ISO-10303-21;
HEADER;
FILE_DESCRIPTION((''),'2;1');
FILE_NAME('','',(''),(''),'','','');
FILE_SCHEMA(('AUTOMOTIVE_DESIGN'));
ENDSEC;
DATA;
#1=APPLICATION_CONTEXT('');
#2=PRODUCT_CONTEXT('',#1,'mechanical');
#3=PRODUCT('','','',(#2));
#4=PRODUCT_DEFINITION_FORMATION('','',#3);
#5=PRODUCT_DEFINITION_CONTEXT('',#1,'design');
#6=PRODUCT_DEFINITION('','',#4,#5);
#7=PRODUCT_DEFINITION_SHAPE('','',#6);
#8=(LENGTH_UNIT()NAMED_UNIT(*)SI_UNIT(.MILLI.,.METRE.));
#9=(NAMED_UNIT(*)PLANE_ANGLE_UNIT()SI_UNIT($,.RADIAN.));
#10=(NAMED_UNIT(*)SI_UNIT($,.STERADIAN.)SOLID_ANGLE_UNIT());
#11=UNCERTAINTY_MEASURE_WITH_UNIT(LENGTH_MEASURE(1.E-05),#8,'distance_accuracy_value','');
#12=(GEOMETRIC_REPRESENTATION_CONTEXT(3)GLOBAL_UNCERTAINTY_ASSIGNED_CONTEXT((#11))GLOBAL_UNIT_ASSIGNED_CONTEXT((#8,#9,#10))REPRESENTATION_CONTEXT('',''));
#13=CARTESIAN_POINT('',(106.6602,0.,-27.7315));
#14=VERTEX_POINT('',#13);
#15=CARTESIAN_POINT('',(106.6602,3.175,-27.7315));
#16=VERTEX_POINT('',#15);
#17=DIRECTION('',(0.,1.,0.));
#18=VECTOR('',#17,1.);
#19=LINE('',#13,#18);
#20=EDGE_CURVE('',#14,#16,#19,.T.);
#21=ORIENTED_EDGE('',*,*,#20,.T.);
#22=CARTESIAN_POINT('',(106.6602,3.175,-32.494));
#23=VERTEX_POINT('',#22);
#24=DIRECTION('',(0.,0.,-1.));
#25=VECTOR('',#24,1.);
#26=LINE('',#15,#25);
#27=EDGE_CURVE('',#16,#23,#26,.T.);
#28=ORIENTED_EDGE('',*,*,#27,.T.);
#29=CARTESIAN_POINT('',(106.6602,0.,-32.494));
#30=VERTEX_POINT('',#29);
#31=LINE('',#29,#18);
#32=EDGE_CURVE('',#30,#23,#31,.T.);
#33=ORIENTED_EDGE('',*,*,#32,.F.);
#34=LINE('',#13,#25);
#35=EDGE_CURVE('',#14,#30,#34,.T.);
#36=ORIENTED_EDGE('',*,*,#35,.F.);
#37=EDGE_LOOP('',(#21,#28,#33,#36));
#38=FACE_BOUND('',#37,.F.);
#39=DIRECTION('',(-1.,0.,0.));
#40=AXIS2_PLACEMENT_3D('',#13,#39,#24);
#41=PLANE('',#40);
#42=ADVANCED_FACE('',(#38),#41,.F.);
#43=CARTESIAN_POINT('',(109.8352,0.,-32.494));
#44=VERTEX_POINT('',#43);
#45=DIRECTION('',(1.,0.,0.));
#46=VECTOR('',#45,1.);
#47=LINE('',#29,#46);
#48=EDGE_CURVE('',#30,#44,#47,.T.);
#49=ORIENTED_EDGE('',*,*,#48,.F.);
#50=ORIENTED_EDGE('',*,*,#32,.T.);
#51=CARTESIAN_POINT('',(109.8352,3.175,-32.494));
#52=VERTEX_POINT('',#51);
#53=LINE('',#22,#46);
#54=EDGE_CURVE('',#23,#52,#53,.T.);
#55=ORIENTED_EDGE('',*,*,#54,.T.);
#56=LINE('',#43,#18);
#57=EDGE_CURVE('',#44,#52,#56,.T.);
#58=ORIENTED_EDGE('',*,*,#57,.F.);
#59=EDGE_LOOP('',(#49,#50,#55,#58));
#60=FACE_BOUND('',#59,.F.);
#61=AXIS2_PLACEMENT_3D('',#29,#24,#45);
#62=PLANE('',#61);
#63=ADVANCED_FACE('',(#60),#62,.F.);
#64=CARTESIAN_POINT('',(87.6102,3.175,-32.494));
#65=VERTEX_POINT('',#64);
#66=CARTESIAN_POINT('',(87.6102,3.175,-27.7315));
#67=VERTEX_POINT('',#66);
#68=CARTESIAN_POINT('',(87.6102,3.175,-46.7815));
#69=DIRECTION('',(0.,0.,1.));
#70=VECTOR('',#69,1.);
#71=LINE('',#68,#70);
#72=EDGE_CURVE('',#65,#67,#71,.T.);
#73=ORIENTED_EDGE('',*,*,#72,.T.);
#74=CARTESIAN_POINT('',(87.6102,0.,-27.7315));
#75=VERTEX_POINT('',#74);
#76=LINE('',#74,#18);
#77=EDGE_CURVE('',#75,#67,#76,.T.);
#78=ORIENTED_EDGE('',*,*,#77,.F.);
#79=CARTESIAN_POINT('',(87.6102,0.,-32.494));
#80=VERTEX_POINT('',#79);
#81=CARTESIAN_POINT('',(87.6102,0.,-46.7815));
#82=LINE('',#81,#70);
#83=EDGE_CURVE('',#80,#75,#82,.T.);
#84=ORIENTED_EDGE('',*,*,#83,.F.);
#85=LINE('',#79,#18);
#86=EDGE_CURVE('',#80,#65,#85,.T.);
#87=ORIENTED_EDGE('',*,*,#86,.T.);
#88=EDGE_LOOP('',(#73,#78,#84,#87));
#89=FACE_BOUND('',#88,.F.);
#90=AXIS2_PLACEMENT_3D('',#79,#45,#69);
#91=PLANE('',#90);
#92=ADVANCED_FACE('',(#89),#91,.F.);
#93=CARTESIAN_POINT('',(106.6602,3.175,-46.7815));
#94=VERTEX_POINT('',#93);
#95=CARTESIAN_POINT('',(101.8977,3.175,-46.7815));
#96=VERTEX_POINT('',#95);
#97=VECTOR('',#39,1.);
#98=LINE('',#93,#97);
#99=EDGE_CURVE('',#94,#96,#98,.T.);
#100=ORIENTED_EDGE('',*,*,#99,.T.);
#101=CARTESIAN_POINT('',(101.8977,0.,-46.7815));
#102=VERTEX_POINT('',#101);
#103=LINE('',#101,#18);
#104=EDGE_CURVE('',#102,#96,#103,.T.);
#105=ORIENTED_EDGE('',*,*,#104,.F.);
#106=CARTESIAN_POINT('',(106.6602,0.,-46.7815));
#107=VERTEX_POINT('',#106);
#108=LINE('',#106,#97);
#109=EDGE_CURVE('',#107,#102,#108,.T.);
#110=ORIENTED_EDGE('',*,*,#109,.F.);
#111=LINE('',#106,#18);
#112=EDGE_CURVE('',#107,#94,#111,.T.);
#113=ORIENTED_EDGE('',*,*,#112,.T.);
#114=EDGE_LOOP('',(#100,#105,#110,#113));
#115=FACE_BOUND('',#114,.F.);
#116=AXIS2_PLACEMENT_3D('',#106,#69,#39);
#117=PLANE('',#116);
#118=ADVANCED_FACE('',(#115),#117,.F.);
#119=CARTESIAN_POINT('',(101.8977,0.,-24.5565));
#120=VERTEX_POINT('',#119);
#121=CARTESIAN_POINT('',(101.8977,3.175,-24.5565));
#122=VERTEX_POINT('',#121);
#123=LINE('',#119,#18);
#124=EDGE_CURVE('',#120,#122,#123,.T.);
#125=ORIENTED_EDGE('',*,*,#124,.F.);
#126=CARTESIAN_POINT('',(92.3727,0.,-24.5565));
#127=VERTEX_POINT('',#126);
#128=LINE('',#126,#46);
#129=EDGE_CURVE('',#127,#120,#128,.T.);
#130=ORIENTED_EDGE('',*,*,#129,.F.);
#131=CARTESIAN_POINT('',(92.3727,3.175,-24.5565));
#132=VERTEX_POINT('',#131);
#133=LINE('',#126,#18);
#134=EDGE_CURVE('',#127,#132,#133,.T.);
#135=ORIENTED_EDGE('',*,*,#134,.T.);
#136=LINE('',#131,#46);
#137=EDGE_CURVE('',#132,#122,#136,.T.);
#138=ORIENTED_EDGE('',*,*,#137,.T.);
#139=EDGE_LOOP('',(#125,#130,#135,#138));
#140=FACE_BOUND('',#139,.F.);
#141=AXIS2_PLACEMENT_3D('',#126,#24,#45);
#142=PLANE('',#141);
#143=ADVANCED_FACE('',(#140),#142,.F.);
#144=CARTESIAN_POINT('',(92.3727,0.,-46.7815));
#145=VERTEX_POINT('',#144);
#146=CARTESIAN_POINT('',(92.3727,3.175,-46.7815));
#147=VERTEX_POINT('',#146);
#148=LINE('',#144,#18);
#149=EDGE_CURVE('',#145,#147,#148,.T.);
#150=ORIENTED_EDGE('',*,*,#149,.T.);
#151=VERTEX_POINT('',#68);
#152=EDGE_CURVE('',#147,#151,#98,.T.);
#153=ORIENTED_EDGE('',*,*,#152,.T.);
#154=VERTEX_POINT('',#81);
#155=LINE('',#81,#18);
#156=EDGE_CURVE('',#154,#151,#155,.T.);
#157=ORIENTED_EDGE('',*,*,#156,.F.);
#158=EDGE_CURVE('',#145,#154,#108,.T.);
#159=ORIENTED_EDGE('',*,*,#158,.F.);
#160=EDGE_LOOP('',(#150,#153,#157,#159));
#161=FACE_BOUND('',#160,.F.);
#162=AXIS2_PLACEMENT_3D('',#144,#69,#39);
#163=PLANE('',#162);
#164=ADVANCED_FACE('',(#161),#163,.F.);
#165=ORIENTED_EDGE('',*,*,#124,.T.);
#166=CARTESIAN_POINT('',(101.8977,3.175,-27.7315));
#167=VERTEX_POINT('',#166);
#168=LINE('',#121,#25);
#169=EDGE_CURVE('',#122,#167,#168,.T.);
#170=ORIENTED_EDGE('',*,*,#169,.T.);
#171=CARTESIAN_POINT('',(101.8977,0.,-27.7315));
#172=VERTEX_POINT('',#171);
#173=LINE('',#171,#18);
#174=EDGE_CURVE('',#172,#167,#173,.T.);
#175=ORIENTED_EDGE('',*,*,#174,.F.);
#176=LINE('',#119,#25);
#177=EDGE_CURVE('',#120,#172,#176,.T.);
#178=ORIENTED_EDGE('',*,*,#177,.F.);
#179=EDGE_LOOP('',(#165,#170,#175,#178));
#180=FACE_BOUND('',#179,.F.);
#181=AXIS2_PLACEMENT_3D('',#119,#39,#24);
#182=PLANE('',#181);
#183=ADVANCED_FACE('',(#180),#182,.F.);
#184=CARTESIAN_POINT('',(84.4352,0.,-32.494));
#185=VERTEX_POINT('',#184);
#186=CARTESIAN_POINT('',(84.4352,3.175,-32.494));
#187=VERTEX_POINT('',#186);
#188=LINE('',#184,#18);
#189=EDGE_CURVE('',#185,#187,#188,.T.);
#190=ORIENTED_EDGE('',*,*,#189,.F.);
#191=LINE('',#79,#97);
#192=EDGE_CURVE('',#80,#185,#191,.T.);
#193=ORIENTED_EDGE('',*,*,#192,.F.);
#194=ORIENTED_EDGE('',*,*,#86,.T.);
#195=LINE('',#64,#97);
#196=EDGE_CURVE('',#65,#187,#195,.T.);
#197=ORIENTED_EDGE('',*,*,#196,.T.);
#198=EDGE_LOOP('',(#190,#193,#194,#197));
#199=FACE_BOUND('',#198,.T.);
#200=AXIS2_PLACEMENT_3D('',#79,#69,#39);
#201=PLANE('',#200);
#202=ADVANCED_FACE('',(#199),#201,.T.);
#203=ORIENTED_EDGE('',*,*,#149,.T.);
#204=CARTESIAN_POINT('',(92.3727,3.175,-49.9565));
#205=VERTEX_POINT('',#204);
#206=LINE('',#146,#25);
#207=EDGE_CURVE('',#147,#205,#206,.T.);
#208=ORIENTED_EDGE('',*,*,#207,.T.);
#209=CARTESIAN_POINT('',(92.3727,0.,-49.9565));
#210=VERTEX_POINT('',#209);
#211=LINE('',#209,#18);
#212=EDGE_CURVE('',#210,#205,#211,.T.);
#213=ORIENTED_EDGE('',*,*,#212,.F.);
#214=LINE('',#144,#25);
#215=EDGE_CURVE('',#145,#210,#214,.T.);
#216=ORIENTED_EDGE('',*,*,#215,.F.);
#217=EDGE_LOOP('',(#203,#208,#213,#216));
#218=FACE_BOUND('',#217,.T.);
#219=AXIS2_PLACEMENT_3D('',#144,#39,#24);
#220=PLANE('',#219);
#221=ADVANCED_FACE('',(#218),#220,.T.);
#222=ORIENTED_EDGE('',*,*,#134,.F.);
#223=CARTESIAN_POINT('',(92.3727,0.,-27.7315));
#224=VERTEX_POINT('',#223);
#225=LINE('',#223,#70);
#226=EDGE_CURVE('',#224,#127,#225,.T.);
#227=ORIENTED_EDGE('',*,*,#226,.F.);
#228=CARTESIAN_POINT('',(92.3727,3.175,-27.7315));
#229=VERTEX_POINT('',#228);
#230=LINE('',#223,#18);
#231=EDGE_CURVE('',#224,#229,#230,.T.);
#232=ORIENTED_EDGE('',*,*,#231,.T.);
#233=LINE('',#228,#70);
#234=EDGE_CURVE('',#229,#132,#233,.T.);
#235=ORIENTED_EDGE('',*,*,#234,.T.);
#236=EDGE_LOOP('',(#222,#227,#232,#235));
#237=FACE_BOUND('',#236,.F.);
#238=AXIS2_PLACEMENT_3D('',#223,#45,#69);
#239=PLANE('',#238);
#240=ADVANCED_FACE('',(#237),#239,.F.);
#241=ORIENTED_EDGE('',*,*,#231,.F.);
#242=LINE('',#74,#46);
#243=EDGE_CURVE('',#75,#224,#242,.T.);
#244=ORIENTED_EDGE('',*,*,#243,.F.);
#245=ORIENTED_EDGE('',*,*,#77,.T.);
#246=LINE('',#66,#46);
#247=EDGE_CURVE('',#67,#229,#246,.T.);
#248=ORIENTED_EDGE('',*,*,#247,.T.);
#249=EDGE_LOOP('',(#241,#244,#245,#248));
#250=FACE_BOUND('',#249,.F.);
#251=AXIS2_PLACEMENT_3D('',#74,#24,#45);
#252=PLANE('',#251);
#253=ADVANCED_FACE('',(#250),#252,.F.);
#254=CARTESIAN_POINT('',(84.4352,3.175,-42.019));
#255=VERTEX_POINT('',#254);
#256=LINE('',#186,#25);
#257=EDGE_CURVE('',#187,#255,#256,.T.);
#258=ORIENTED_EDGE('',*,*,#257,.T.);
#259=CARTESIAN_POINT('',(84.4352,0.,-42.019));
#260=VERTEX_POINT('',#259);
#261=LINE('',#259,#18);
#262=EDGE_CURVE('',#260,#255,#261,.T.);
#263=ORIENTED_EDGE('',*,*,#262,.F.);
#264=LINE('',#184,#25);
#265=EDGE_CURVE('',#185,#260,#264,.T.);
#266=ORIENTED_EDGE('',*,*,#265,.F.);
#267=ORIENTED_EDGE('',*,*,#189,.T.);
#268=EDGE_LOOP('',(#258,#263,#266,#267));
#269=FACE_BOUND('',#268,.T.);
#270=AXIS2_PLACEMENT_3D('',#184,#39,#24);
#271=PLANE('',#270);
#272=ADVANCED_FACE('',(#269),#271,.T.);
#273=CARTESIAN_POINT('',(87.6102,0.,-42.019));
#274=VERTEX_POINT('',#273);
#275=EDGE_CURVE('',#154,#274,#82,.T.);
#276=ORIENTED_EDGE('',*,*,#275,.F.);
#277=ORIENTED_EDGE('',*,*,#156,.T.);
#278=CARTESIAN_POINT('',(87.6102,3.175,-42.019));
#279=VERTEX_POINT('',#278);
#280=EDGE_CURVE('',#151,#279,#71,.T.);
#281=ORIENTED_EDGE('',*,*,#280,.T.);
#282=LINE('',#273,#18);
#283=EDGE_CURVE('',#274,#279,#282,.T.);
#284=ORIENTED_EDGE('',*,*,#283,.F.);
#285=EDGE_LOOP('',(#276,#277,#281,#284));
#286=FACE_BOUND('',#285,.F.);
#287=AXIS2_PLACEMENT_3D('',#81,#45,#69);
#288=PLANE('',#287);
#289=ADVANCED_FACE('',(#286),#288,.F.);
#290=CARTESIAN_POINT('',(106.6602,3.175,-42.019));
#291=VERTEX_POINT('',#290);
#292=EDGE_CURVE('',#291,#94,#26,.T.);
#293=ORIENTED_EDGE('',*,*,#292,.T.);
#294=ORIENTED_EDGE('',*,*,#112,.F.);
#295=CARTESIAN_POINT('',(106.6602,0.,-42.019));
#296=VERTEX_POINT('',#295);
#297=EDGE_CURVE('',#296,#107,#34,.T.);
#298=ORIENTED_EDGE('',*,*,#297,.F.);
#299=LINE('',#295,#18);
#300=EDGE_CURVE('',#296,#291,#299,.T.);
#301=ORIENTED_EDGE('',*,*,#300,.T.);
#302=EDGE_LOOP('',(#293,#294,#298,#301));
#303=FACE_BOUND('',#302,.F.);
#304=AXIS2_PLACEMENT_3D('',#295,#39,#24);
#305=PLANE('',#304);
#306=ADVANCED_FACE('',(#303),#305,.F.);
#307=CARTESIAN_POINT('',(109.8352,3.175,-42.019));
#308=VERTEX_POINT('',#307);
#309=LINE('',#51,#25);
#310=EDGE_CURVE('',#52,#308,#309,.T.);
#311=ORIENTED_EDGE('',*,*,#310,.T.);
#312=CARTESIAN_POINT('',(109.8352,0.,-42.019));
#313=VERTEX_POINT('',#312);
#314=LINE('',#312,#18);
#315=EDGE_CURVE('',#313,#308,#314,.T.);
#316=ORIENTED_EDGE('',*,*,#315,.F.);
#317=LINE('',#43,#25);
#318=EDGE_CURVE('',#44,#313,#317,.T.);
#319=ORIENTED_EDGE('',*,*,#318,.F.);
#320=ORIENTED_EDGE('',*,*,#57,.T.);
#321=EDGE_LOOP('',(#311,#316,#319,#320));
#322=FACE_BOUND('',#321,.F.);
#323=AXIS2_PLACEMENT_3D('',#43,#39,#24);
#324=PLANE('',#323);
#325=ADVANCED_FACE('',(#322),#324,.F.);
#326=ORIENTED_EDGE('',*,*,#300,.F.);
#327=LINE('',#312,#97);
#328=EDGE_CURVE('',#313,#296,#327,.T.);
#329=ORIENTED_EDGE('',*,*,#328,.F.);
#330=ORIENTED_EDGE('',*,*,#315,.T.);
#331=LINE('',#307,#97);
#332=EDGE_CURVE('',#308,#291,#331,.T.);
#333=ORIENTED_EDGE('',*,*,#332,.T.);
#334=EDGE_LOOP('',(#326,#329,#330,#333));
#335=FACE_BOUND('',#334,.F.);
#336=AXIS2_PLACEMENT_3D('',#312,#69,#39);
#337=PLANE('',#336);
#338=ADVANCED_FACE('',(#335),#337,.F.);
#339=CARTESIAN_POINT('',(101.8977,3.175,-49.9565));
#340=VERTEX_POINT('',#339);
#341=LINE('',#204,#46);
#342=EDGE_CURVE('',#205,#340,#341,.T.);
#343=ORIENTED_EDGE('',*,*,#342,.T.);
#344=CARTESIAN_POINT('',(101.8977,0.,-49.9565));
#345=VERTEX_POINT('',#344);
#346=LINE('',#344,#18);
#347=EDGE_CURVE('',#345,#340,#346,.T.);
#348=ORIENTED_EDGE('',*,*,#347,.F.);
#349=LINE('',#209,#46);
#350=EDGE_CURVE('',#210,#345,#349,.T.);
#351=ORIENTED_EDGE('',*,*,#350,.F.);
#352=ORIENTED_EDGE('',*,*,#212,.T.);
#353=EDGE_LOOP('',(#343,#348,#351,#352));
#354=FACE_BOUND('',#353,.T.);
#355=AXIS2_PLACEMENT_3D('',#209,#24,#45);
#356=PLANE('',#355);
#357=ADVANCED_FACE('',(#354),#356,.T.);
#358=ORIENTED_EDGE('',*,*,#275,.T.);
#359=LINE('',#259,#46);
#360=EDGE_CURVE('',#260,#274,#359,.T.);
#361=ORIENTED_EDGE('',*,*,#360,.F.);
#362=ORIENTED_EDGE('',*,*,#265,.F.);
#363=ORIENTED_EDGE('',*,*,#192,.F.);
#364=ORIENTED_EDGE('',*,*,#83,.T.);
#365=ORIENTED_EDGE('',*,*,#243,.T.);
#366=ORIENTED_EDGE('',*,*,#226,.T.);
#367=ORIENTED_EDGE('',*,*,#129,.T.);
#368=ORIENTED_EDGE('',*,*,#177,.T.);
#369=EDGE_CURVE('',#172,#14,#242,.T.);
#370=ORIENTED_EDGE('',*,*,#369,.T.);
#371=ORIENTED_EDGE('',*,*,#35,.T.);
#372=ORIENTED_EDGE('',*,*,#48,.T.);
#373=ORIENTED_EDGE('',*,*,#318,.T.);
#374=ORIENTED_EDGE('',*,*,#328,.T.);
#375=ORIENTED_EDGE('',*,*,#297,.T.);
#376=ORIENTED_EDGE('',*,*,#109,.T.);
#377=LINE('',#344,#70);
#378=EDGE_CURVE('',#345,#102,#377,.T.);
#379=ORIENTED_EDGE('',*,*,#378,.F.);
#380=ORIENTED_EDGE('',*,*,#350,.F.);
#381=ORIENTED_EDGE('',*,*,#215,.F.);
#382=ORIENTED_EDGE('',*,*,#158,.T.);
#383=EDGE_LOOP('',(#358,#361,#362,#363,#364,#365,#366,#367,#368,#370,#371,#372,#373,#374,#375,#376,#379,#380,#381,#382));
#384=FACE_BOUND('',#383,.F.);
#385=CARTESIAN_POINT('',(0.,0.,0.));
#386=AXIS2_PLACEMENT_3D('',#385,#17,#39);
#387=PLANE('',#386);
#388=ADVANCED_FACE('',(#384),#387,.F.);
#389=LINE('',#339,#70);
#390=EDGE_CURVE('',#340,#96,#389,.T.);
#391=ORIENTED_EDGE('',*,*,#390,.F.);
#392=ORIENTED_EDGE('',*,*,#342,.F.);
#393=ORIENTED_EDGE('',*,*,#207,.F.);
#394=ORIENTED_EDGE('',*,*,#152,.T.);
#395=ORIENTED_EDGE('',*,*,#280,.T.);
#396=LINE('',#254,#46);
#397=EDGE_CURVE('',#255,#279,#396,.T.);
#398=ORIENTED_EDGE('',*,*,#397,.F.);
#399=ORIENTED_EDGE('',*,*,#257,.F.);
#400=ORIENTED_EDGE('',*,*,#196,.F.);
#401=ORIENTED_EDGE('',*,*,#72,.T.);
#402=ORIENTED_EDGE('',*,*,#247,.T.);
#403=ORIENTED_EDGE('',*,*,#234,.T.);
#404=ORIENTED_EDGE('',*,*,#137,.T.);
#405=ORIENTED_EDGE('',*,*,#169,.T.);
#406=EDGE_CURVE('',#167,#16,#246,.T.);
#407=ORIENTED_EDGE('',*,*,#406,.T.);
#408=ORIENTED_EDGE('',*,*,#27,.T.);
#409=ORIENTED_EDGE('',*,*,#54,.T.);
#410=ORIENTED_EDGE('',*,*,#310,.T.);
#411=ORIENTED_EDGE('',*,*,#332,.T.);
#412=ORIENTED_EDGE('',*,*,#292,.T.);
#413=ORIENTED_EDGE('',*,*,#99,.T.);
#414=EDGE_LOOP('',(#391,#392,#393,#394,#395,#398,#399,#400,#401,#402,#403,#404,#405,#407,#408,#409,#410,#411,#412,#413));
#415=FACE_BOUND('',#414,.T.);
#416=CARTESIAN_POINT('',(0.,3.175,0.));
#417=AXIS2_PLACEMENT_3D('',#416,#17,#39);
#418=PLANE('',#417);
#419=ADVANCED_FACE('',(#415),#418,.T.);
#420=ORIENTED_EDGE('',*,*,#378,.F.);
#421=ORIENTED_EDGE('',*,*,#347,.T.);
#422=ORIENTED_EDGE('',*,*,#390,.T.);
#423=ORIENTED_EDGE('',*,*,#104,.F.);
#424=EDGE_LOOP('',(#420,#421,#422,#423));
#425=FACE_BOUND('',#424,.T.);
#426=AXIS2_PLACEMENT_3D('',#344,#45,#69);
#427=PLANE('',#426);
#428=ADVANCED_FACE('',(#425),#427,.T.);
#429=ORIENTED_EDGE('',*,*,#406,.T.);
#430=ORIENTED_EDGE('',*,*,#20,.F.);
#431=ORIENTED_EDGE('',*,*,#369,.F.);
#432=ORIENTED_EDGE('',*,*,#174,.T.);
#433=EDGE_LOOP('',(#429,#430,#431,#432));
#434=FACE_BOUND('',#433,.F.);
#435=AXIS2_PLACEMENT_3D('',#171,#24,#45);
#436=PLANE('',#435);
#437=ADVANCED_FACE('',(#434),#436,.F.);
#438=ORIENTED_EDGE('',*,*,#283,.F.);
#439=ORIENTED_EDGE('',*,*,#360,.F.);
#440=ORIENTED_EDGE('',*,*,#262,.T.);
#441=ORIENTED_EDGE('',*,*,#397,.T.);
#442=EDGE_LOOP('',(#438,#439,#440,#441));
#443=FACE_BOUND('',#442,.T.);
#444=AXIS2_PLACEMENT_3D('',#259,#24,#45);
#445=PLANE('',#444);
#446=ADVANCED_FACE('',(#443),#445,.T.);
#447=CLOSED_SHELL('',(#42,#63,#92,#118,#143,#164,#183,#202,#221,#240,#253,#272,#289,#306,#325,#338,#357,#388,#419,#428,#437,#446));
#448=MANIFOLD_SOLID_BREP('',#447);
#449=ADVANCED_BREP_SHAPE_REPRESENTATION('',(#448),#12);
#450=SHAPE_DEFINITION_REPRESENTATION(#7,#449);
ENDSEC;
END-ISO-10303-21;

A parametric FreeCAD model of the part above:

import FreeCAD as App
import Part
import Sketcher

V = App.Vector
Q = App.Units.Quantity


def add_polygon(sketch, points):
    """Adds a closed chain of lines whose ends are joined by coincident constraints."""
    first, n = sketch.GeometryCount, len(points)
    for a, b in zip(points, points[1:] + points[:1]):
        sketch.addGeometry(Part.LineSegment(App.Vector(*a, 0), App.Vector(*b, 0)), False)
    for i in range(n):
        sketch.addConstraint(Sketcher.Constraint("Coincident", first + i, 2, first + (i + 1) % n, 1))

doc = App.newDocument("Part")
body = doc.addObject("PartDesign::Body", "Body")

# Sketch on XZ plane
sketch1 = doc.addObject("Sketcher::SketchObject", "Sketch")
body.addObject(sketch1)
sketch1.AttachmentSupport = (doc.XZ_Plane, [""])
sketch1.MapMode = "FlatFace"
add_polygon(sketch1, [(87.6102, -32.494), (87.6102, -27.7315), (92.3727, -27.7315), (92.3727, -24.5565), (101.8977, -24.5565), (101.8977, -27.7315), (106.6602, -27.7315), (106.6602, -32.494), (109.8352, -32.494), (109.8352, -42.019), (106.6602, -42.019), (106.6602, -46.7815), (101.8977, -46.7815), (101.8977, -49.9565), (92.3727, -49.9565), (92.3727, -46.7815), (87.6102, -46.7815), (87.6102, -42.019), (84.4352, -42.019), (84.4352, -32.494)])  # lines 0-19
sketch1.addConstraint([
    Sketcher.Constraint("Vertical", 0),
    Sketcher.Constraint("Horizontal", 1),
    Sketcher.Constraint("Vertical", 2),
    Sketcher.Constraint("Horizontal", 3),
    Sketcher.Constraint("Vertical", 4),
    Sketcher.Constraint("Horizontal", 5),
    Sketcher.Constraint("Vertical", 6),
    Sketcher.Constraint("Horizontal", 7),
    Sketcher.Constraint("Vertical", 8),
    Sketcher.Constraint("Horizontal", 9),
    Sketcher.Constraint("Vertical", 10),
    Sketcher.Constraint("Horizontal", 11),
    Sketcher.Constraint("Vertical", 12),
    Sketcher.Constraint("Horizontal", 13),
    Sketcher.Constraint("Vertical", 14),
    Sketcher.Constraint("Horizontal", 15),
    Sketcher.Constraint("Vertical", 16),
    Sketcher.Constraint("Horizontal", 17),
    Sketcher.Constraint("Vertical", 18),
    Sketcher.Constraint("Horizontal", 19),
    Sketcher.Constraint("Horizontal", 1, 2, 4, 2),
    Sketcher.Constraint("Horizontal", 11, 2, 14, 2),
    Sketcher.Constraint("Horizontal", 9, 2, 16, 2),
    Sketcher.Constraint("Horizontal", 7, 2, 18, 2),
    Sketcher.Constraint("Vertical", 6, 2, 9, 2),
    Sketcher.Constraint("Vertical", 4, 2, 11, 2),
    Sketcher.Constraint("Vertical", 2, 2, 13, 2),
    Sketcher.Constraint("Vertical", 0, 2, 15, 2),
    Sketcher.Constraint("Equal", 1, 5),
    Sketcher.Constraint("Equal", 9, 17),
    Sketcher.Constraint("Equal", 15, 0),
    Sketcher.Constraint("Equal", 19, 2),
    Sketcher.Constraint("Equal", 13, 8),
    Sketcher.Constraint("Equal", 6, 10),
    Sketcher.Constraint("Equal", 4, 12),
    Sketcher.Constraint("DistanceX", 1, 1, 1, 2, Q("0.1875 in")),
    Sketcher.Constraint("DistanceX", 7, 1, 7, 2, Q("0.125 in")),
    Sketcher.Constraint("DistanceX", 0, 2, 5, 2, Q("0.75 in")),
    Sketcher.Constraint("DistanceY", 0, 2, -1, 1, Q("1.0918 in")),
    Sketcher.Constraint("DistanceX", -1, 1, 0, 2, Q("87.6102 mm")),
])
pad1 = doc.addObject("PartDesign::Pad", "Pad")
body.addObject(pad1)
pad1.Profile = sketch1
pad1.Length = Q("0.125 in")
pad1.Reversed = True

doc.recompute()
